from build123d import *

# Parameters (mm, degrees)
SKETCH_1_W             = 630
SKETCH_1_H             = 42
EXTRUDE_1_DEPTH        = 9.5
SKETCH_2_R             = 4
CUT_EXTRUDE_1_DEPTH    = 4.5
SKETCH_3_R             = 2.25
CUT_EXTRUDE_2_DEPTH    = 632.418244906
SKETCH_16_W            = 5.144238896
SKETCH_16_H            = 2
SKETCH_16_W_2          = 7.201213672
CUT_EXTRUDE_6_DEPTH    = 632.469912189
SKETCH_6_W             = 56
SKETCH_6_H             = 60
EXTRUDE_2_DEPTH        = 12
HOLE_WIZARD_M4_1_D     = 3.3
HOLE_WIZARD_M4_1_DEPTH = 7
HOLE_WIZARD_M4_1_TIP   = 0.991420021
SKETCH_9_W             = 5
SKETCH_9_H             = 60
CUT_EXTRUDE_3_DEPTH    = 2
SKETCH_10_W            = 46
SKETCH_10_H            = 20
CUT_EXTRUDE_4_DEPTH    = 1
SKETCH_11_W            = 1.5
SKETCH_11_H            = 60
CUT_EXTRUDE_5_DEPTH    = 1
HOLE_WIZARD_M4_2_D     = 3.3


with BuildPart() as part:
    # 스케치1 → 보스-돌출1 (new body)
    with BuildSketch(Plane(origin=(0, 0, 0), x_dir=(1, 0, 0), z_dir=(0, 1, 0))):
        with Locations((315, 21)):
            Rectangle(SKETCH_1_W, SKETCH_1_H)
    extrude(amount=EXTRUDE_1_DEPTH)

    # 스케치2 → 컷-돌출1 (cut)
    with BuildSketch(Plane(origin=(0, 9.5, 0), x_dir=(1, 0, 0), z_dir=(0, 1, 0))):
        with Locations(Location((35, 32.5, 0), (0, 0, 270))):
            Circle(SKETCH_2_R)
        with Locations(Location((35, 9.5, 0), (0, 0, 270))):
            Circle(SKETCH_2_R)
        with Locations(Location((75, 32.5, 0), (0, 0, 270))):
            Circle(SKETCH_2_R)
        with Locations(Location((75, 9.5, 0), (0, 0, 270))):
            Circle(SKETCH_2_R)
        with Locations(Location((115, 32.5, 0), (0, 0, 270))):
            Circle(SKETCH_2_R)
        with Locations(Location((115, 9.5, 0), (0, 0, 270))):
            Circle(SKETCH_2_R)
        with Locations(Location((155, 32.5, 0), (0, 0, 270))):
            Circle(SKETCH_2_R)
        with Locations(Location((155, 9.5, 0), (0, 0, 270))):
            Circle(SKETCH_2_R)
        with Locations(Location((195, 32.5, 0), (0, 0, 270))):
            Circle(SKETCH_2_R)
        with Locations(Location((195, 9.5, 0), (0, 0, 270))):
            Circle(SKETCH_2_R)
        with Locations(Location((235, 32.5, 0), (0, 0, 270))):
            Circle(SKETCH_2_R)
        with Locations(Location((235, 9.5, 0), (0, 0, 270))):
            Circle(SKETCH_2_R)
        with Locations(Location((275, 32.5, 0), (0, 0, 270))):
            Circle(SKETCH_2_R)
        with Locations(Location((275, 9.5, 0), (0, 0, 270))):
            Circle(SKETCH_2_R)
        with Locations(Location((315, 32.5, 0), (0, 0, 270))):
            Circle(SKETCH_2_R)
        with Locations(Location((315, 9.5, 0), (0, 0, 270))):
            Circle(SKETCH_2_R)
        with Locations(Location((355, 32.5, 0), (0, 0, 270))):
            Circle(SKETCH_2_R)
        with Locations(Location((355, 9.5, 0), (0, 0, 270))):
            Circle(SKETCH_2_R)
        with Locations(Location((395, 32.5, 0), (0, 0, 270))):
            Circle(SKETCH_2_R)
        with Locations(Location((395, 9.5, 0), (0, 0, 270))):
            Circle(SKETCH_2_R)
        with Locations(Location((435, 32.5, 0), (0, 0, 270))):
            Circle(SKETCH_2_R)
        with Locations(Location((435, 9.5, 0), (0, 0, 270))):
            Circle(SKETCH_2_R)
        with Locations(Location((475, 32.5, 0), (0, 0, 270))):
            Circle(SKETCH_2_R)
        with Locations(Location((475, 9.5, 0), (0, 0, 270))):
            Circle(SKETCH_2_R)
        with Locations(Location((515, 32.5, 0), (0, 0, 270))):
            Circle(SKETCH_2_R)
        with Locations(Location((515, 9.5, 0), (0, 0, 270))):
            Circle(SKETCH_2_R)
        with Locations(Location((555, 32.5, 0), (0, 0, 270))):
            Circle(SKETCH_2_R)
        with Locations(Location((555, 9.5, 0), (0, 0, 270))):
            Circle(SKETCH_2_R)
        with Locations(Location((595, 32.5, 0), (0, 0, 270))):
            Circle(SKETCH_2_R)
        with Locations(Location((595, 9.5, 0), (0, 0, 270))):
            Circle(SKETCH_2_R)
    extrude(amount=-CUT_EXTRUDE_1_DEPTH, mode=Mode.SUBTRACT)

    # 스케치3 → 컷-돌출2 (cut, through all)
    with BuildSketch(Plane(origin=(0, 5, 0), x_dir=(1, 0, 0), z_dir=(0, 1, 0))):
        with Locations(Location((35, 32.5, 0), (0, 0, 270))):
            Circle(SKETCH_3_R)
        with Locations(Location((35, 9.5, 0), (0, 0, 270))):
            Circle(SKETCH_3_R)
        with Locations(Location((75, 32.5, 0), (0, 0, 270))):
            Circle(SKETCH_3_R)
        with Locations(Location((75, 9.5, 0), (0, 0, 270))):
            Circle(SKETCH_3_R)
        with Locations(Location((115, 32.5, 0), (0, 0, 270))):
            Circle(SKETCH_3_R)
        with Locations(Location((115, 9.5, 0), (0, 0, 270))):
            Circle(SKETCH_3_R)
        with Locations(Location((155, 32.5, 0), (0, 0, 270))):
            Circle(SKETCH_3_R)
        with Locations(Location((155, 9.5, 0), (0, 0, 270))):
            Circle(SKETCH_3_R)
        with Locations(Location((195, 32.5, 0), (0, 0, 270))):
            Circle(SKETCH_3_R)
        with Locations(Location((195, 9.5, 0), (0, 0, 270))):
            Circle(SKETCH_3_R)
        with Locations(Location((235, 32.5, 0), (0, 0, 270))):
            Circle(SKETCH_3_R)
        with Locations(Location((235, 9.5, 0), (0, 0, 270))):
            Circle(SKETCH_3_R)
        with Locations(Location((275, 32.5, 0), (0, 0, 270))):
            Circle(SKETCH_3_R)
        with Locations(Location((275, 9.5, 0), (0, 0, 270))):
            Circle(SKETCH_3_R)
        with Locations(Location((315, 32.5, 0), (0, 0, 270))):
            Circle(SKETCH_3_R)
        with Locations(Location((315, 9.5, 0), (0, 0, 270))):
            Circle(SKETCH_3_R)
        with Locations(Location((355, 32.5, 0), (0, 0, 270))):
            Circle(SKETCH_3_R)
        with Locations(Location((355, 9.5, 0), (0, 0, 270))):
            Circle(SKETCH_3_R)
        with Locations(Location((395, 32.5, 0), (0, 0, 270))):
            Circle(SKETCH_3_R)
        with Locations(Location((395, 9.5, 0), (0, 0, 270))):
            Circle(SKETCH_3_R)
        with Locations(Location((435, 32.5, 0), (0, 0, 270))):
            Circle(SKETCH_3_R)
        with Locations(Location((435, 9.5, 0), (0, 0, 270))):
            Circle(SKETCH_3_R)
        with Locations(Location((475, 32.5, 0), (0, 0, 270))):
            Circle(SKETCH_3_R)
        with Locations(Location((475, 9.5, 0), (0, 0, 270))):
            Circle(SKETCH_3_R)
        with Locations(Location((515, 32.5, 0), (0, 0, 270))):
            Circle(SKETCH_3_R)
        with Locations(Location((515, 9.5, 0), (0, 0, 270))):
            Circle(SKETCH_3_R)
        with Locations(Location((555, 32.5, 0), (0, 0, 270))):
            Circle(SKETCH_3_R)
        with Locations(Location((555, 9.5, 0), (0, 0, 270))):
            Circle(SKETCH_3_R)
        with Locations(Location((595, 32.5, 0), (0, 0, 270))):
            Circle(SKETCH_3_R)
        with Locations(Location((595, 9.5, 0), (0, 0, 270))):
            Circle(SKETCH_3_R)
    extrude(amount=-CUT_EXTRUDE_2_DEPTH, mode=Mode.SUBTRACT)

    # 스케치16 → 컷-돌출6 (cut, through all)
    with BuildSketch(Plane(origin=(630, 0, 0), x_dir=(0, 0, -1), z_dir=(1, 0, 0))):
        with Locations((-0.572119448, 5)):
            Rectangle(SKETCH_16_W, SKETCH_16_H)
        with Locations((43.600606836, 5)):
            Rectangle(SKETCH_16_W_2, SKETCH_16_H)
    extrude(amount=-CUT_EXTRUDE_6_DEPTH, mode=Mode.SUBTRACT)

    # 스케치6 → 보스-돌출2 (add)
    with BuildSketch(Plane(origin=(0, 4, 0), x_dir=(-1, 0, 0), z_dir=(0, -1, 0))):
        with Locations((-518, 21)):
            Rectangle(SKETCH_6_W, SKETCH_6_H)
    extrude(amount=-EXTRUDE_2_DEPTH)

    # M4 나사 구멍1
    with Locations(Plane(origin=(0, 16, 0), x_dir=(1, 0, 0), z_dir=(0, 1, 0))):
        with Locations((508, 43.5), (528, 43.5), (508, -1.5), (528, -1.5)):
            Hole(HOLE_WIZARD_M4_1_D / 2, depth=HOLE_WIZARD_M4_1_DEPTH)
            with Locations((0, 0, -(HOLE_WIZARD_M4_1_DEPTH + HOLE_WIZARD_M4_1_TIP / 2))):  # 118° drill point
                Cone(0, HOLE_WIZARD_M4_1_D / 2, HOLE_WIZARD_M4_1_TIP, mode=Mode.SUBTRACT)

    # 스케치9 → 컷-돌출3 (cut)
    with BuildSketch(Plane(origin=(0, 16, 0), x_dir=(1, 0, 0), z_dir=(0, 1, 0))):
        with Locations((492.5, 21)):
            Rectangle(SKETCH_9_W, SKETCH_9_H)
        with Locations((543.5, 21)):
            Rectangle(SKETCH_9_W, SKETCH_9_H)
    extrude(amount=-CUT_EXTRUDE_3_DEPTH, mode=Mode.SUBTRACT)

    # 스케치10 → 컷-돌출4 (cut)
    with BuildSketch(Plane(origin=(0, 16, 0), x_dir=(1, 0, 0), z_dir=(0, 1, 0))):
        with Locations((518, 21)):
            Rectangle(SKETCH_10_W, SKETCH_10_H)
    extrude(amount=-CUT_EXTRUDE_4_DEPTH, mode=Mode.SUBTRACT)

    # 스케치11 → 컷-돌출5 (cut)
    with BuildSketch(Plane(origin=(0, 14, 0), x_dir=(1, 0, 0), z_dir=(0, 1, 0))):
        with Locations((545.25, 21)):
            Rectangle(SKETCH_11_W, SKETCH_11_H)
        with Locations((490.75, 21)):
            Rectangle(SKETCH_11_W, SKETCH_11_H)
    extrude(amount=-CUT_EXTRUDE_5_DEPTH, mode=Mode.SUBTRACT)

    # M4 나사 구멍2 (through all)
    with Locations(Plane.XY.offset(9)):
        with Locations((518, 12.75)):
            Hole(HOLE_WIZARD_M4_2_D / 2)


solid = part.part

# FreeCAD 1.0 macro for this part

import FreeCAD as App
import Part
import Sketcher

V = App.Vector
Q = App.Units.Quantity


def add_polygon(sketch, points):
    """Adds a closed chain of lines whose ends are joined by coincident constraints."""
    first, n = sketch.GeometryCount, len(points)
    for a, b in zip(points, points[1:] + points[:1]):
        sketch.addGeometry(Part.LineSegment(App.Vector(*a, 0), App.Vector(*b, 0)), False)
    for i in range(n):
        sketch.addConstraint(Sketcher.Constraint("Coincident", first + i, 2, first + (i + 1) % n, 1))

doc = App.newDocument("Part")
body = doc.addObject("PartDesign::Body", "Body")

# Sketch on XZ plane
sketch1 = doc.addObject("Sketcher::SketchObject", "Sketch")
body.addObject(sketch1)
sketch1.AttachmentSupport = (doc.XZ_Plane, [""])
sketch1.MapMode = "FlatFace"
add_polygon(sketch1, [(0, -42), (0, 0), (630, 0), (630, -42)])  # lines 0-3
sketch1.addConstraint(Sketcher.Constraint("Vertical", 0))
sketch1.addConstraint(Sketcher.Constraint("Horizontal", 1))
sketch1.addConstraint(Sketcher.Constraint("Vertical", 2))
sketch1.addConstraint(Sketcher.Constraint("Horizontal", 3))
sketch1.addConstraint(Sketcher.Constraint("Coincident", 0, 2, -1, 1))
sketch1.addConstraint(Sketcher.Constraint("DistanceX", 1, 1, 1, 2, Q("630 mm")))
sketch1.addConstraint(Sketcher.Constraint("DistanceY", 0, 1, 0, 2, Q("42 mm")))
pad1 = doc.addObject("PartDesign::Pad", "Pad")
body.addObject(pad1)
pad1.Profile = sketch1
pad1.Length = 9.5
pad1.Reversed = True

# Sketch on XZ plane
sketch2 = doc.addObject("Sketcher::SketchObject", "Sketch001")
body.addObject(sketch2)
sketch2.AttachmentSupport = (doc.XZ_Plane, [""])
sketch2.MapMode = "FlatFace"
sketch2.AttachmentOffset = App.Placement(V(0, 0, -9.5), App.Rotation())
sketch2.addGeometry(Part.Circle(V(35, -32.5, 0), V(0, 0, 1), 4), False)
sketch2.addGeometry(Part.Circle(V(35, -9.5, 0), V(0, 0, 1), 4), False)
sketch2.addGeometry(Part.Circle(V(75, -32.5, 0), V(0, 0, 1), 4), False)
sketch2.addGeometry(Part.Circle(V(75, -9.5, 0), V(0, 0, 1), 4), False)
sketch2.addGeometry(Part.Circle(V(115, -32.5, 0), V(0, 0, 1), 4), False)
sketch2.addGeometry(Part.Circle(V(115, -9.5, 0), V(0, 0, 1), 4), False)
sketch2.addGeometry(Part.Circle(V(155, -32.5, 0), V(0, 0, 1), 4), False)
sketch2.addGeometry(Part.Circle(V(155, -9.5, 0), V(0, 0, 1), 4), False)
sketch2.addGeometry(Part.Circle(V(195, -32.5, 0), V(0, 0, 1), 4), False)
sketch2.addGeometry(Part.Circle(V(195, -9.5, 0), V(0, 0, 1), 4), False)
sketch2.addGeometry(Part.Circle(V(235, -32.5, 0), V(0, 0, 1), 4), False)
sketch2.addGeometry(Part.Circle(V(235, -9.5, 0), V(0, 0, 1), 4), False)
sketch2.addGeometry(Part.Circle(V(275, -32.5, 0), V(0, 0, 1), 4), False)
sketch2.addGeometry(Part.Circle(V(275, -9.5, 0), V(0, 0, 1), 4), False)
sketch2.addGeometry(Part.Circle(V(315, -32.5, 0), V(0, 0, 1), 4), False)
sketch2.addGeometry(Part.Circle(V(315, -9.5, 0), V(0, 0, 1), 4), False)
sketch2.addGeometry(Part.Circle(V(355, -32.5, 0), V(0, 0, 1), 4), False)
sketch2.addGeometry(Part.Circle(V(355, -9.5, 0), V(0, 0, 1), 4), False)
sketch2.addGeometry(Part.Circle(V(395, -32.5, 0), V(0, 0, 1), 4), False)
sketch2.addGeometry(Part.Circle(V(395, -9.5, 0), V(0, 0, 1), 4), False)
sketch2.addGeometry(Part.Circle(V(435, -32.5, 0), V(0, 0, 1), 4), False)
sketch2.addGeometry(Part.Circle(V(435, -9.5, 0), V(0, 0, 1), 4), False)
sketch2.addGeometry(Part.Circle(V(475, -32.5, 0), V(0, 0, 1), 4), False)
sketch2.addGeometry(Part.Circle(V(475, -9.5, 0), V(0, 0, 1), 4), False)
sketch2.addGeometry(Part.Circle(V(515, -32.5, 0), V(0, 0, 1), 4), False)
sketch2.addGeometry(Part.Circle(V(515, -9.5, 0), V(0, 0, 1), 4), False)
sketch2.addGeometry(Part.Circle(V(555, -32.5, 0), V(0, 0, 1), 4), False)
sketch2.addGeometry(Part.Circle(V(555, -9.5, 0), V(0, 0, 1), 4), False)
sketch2.addGeometry(Part.Circle(V(595, -32.5, 0), V(0, 0, 1), 4), False)
sketch2.addGeometry(Part.Circle(V(595, -9.5, 0), V(0, 0, 1), 4), False)
sketch2.addConstraint(Sketcher.Constraint("Equal", 0, 1))
sketch2.addConstraint(Sketcher.Constraint("Equal", 1, 2))
sketch2.addConstraint(Sketcher.Constraint("Equal", 2, 3))
sketch2.addConstraint(Sketcher.Constraint("Equal", 3, 4))
sketch2.addConstraint(Sketcher.Constraint("Equal", 4, 5))
sketch2.addConstraint(Sketcher.Constraint("Equal", 5, 6))
sketch2.addConstraint(Sketcher.Constraint("Equal", 6, 7))
sketch2.addConstraint(Sketcher.Constraint("Equal", 7, 8))
sketch2.addConstraint(Sketcher.Constraint("Equal", 8, 9))
sketch2.addConstraint(Sketcher.Constraint("Equal", 9, 10))
sketch2.addConstraint(Sketcher.Constraint("Equal", 10, 11))
sketch2.addConstraint(Sketcher.Constraint("Equal", 11, 12))
sketch2.addConstraint(Sketcher.Constraint("Equal", 12, 13))
sketch2.addConstraint(Sketcher.Constraint("Equal", 13, 14))
sketch2.addConstraint(Sketcher.Constraint("Equal", 14, 15))
sketch2.addConstraint(Sketcher.Constraint("Equal", 15, 16))
sketch2.addConstraint(Sketcher.Constraint("Equal", 16, 17))
sketch2.addConstraint(Sketcher.Constraint("Equal", 17, 18))
sketch2.addConstraint(Sketcher.Constraint("Equal", 18, 19))
sketch2.addConstraint(Sketcher.Constraint("Equal", 19, 20))
sketch2.addConstraint(Sketcher.Constraint("Equal", 20, 21))
sketch2.addConstraint(Sketcher.Constraint("Equal", 21, 22))
sketch2.addConstraint(Sketcher.Constraint("Equal", 22, 23))
sketch2.addConstraint(Sketcher.Constraint("Equal", 23, 24))
sketch2.addConstraint(Sketcher.Constraint("Equal", 24, 25))
sketch2.addConstraint(Sketcher.Constraint("Equal", 25, 26))
sketch2.addConstraint(Sketcher.Constraint("Equal", 26, 27))
sketch2.addConstraint(Sketcher.Constraint("Equal", 27, 28))
sketch2.addConstraint(Sketcher.Constraint("Equal", 28, 29))
sketch2.addConstraint(Sketcher.Constraint("Horizontal", 0, 3, 2, 3))
sketch2.addConstraint(Sketcher.Constraint("Horizontal", 1, 3, 3, 3))
sketch2.addConstraint(Sketcher.Constraint("Horizontal", 2, 3, 4, 3))
sketch2.addConstraint(Sketcher.Constraint("Horizontal", 3, 3, 5, 3))
sketch2.addConstraint(Sketcher.Constraint("Horizontal", 4, 3, 6, 3))
sketch2.addConstraint(Sketcher.Constraint("Horizontal", 5, 3, 7, 3))
sketch2.addConstraint(Sketcher.Constraint("Horizontal", 6, 3, 8, 3))
sketch2.addConstraint(Sketcher.Constraint("Horizontal", 7, 3, 9, 3))
sketch2.addConstraint(Sketcher.Constraint("Horizontal", 8, 3, 10, 3))
sketch2.addConstraint(Sketcher.Constraint("Horizontal", 9, 3, 11, 3))
sketch2.addConstraint(Sketcher.Constraint("Horizontal", 10, 3, 12, 3))
sketch2.addConstraint(Sketcher.Constraint("Horizontal", 11, 3, 13, 3))
sketch2.addConstraint(Sketcher.Constraint("Horizontal", 12, 3, 14, 3))
sketch2.addConstraint(Sketcher.Constraint("Horizontal", 13, 3, 15, 3))
sketch2.addConstraint(Sketcher.Constraint("Horizontal", 14, 3, 16, 3))
sketch2.addConstraint(Sketcher.Constraint("Horizontal", 15, 3, 17, 3))
sketch2.addConstraint(Sketcher.Constraint("Horizontal", 16, 3, 18, 3))
sketch2.addConstraint(Sketcher.Constraint("Horizontal", 17, 3, 19, 3))
sketch2.addConstraint(Sketcher.Constraint("Horizontal", 18, 3, 20, 3))
sketch2.addConstraint(Sketcher.Constraint("Horizontal", 19, 3, 21, 3))
sketch2.addConstraint(Sketcher.Constraint("Horizontal", 20, 3, 22, 3))
sketch2.addConstraint(Sketcher.Constraint("Horizontal", 21, 3, 23, 3))
sketch2.addConstraint(Sketcher.Constraint("Horizontal", 22, 3, 24, 3))
sketch2.addConstraint(Sketcher.Constraint("Horizontal", 23, 3, 25, 3))
sketch2.addConstraint(Sketcher.Constraint("Horizontal", 24, 3, 26, 3))
sketch2.addConstraint(Sketcher.Constraint("Horizontal", 25, 3, 27, 3))
sketch2.addConstraint(Sketcher.Constraint("Horizontal", 26, 3, 28, 3))
sketch2.addConstraint(Sketcher.Constraint("Horizontal", 27, 3, 29, 3))
sketch2.addConstraint(Sketcher.Constraint("Vertical", 0, 3, 1, 3))
sketch2.addConstraint(Sketcher.Constraint("Vertical", 2, 3, 3, 3))
sketch2.addConstraint(Sketcher.Constraint("Vertical", 4, 3, 5, 3))
sketch2.addConstraint(Sketcher.Constraint("Vertical", 6, 3, 7, 3))
sketch2.addConstraint(Sketcher.Constraint("Vertical", 8, 3, 9, 3))
sketch2.addConstraint(Sketcher.Constraint("Vertical", 10, 3, 11, 3))
sketch2.addConstraint(Sketcher.Constraint("Vertical", 12, 3, 13, 3))
sketch2.addConstraint(Sketcher.Constraint("Vertical", 14, 3, 15, 3))
sketch2.addConstraint(Sketcher.Constraint("Vertical", 16, 3, 17, 3))
sketch2.addConstraint(Sketcher.Constraint("Vertical", 18, 3, 19, 3))
sketch2.addConstraint(Sketcher.Constraint("Vertical", 20, 3, 21, 3))
sketch2.addConstraint(Sketcher.Constraint("Vertical", 22, 3, 23, 3))
sketch2.addConstraint(Sketcher.Constraint("Vertical", 24, 3, 25, 3))
sketch2.addConstraint(Sketcher.Constraint("Vertical", 26, 3, 27, 3))
sketch2.addConstraint(Sketcher.Constraint("Vertical", 28, 3, 29, 3))
sketch2.addConstraint(Sketcher.Constraint("Diameter", 0, Q("8 mm")))
sketch2.addConstraint(Sketcher.Constraint("DistanceX", -1, 1, 0, 3, Q("35 mm")))
sketch2.addConstraint(Sketcher.Constraint("DistanceX", -1, 1, 2, 3, Q("75 mm")))
sketch2.addConstraint(Sketcher.Constraint("DistanceX", -1, 1, 4, 3, Q("115 mm")))
sketch2.addConstraint(Sketcher.Constraint("DistanceX", -1, 1, 6, 3, Q("155 mm")))
sketch2.addConstraint(Sketcher.Constraint("DistanceX", -1, 1, 8, 3, Q("195 mm")))
sketch2.addConstraint(Sketcher.Constraint("DistanceX", -1, 1, 10, 3, Q("235 mm")))
sketch2.addConstraint(Sketcher.Constraint("DistanceX", -1, 1, 12, 3, Q("275 mm")))
sketch2.addConstraint(Sketcher.Constraint("DistanceX", -1, 1, 14, 3, Q("315 mm")))
sketch2.addConstraint(Sketcher.Constraint("DistanceX", -1, 1, 16, 3, Q("355 mm")))
sketch2.addConstraint(Sketcher.Constraint("DistanceX", -1, 1, 18, 3, Q("395 mm")))
sketch2.addConstraint(Sketcher.Constraint("DistanceX", -1, 1, 20, 3, Q("435 mm")))
sketch2.addConstraint(Sketcher.Constraint("DistanceX", -1, 1, 22, 3, Q("475 mm")))
sketch2.addConstraint(Sketcher.Constraint("DistanceX", -1, 1, 24, 3, Q("515 mm")))
sketch2.addConstraint(Sketcher.Constraint("DistanceX", -1, 1, 26, 3, Q("555 mm")))
sketch2.addConstraint(Sketcher.Constraint("DistanceX", -1, 1, 28, 3, Q("595 mm")))
sketch2.addConstraint(Sketcher.Constraint("DistanceY", 0, 3, 1, 3, Q("23 mm")))
sketch2.addConstraint(Sketcher.Constraint("DistanceY", 0, 3, -1, 1, Q("32.5 mm")))
pocket1 = doc.addObject("PartDesign::Pocket", "Pocket")
body.addObject(pocket1)
pocket1.Profile = sketch2
pocket1.Length = 4.5
pocket1.Reversed = True

# Sketch on XZ plane
sketch3 = doc.addObject("Sketcher::SketchObject", "Sketch002")
body.addObject(sketch3)
sketch3.AttachmentSupport = (doc.XZ_Plane, [""])
sketch3.MapMode = "FlatFace"
sketch3.AttachmentOffset = App.Placement(V(0, 0, -5), App.Rotation())
sketch3.addGeometry(Part.Circle(V(35, -32.5, 0), V(0, 0, 1), 2.25), False)
sketch3.addGeometry(Part.Circle(V(35, -9.5, 0), V(0, 0, 1), 2.25), False)
sketch3.addGeometry(Part.Circle(V(75, -32.5, 0), V(0, 0, 1), 2.25), False)
sketch3.addGeometry(Part.Circle(V(75, -9.5, 0), V(0, 0, 1), 2.25), False)
sketch3.addGeometry(Part.Circle(V(115, -32.5, 0), V(0, 0, 1), 2.25), False)
sketch3.addGeometry(Part.Circle(V(115, -9.5, 0), V(0, 0, 1), 2.25), False)
sketch3.addGeometry(Part.Circle(V(155, -32.5, 0), V(0, 0, 1), 2.25), False)
sketch3.addGeometry(Part.Circle(V(155, -9.5, 0), V(0, 0, 1), 2.25), False)
sketch3.addGeometry(Part.Circle(V(195, -32.5, 0), V(0, 0, 1), 2.25), False)
sketch3.addGeometry(Part.Circle(V(195, -9.5, 0), V(0, 0, 1), 2.25), False)
sketch3.addGeometry(Part.Circle(V(235, -32.5, 0), V(0, 0, 1), 2.25), False)
sketch3.addGeometry(Part.Circle(V(235, -9.5, 0), V(0, 0, 1), 2.25), False)
sketch3.addGeometry(Part.Circle(V(275, -32.5, 0), V(0, 0, 1), 2.25), False)
sketch3.addGeometry(Part.Circle(V(275, -9.5, 0), V(0, 0, 1), 2.25), False)
sketch3.addGeometry(Part.Circle(V(315, -32.5, 0), V(0, 0, 1), 2.25), False)
sketch3.addGeometry(Part.Circle(V(315, -9.5, 0), V(0, 0, 1), 2.25), False)
sketch3.addGeometry(Part.Circle(V(355, -32.5, 0), V(0, 0, 1), 2.25), False)
sketch3.addGeometry(Part.Circle(V(355, -9.5, 0), V(0, 0, 1), 2.25), False)
sketch3.addGeometry(Part.Circle(V(395, -32.5, 0), V(0, 0, 1), 2.25), False)
sketch3.addGeometry(Part.Circle(V(395, -9.5, 0), V(0, 0, 1), 2.25), False)
sketch3.addGeometry(Part.Circle(V(435, -32.5, 0), V(0, 0, 1), 2.25), False)
sketch3.addGeometry(Part.Circle(V(435, -9.5, 0), V(0, 0, 1), 2.25), False)
sketch3.addGeometry(Part.Circle(V(475, -32.5, 0), V(0, 0, 1), 2.25), False)
sketch3.addGeometry(Part.Circle(V(475, -9.5, 0), V(0, 0, 1), 2.25), False)
sketch3.addGeometry(Part.Circle(V(515, -32.5, 0), V(0, 0, 1), 2.25), False)
sketch3.addGeometry(Part.Circle(V(515, -9.5, 0), V(0, 0, 1), 2.25), False)
sketch3.addGeometry(Part.Circle(V(555, -32.5, 0), V(0, 0, 1), 2.25), False)
sketch3.addGeometry(Part.Circle(V(555, -9.5, 0), V(0, 0, 1), 2.25), False)
sketch3.addGeometry(Part.Circle(V(595, -32.5, 0), V(0, 0, 1), 2.25), False)
sketch3.addGeometry(Part.Circle(V(595, -9.5, 0), V(0, 0, 1), 2.25), False)
sketch3.addConstraint(Sketcher.Constraint("Equal", 0, 1))
sketch3.addConstraint(Sketcher.Constraint("Equal", 1, 2))
sketch3.addConstraint(Sketcher.Constraint("Equal", 2, 3))
sketch3.addConstraint(Sketcher.Constraint("Equal", 3, 4))
sketch3.addConstraint(Sketcher.Constraint("Equal", 4, 5))
sketch3.addConstraint(Sketcher.Constraint("Equal", 5, 6))
sketch3.addConstraint(Sketcher.Constraint("Equal", 6, 7))
sketch3.addConstraint(Sketcher.Constraint("Equal", 7, 8))
sketch3.addConstraint(Sketcher.Constraint("Equal", 8, 9))
sketch3.addConstraint(Sketcher.Constraint("Equal", 9, 10))
sketch3.addConstraint(Sketcher.Constraint("Equal", 10, 11))
sketch3.addConstraint(Sketcher.Constraint("Equal", 11, 12))
sketch3.addConstraint(Sketcher.Constraint("Equal", 12, 13))
sketch3.addConstraint(Sketcher.Constraint("Equal", 13, 14))
sketch3.addConstraint(Sketcher.Constraint("Equal", 14, 15))
sketch3.addConstraint(Sketcher.Constraint("Equal", 15, 16))
sketch3.addConstraint(Sketcher.Constraint("Equal", 16, 17))
sketch3.addConstraint(Sketcher.Constraint("Equal", 17, 18))
sketch3.addConstraint(Sketcher.Constraint("Equal", 18, 19))
sketch3.addConstraint(Sketcher.Constraint("Equal", 19, 20))
sketch3.addConstraint(Sketcher.Constraint("Equal", 20, 21))
sketch3.addConstraint(Sketcher.Constraint("Equal", 21, 22))
sketch3.addConstraint(Sketcher.Constraint("Equal", 22, 23))
sketch3.addConstraint(Sketcher.Constraint("Equal", 23, 24))
sketch3.addConstraint(Sketcher.Constraint("Equal", 24, 25))
sketch3.addConstraint(Sketcher.Constraint("Equal", 25, 26))
sketch3.addConstraint(Sketcher.Constraint("Equal", 26, 27))
sketch3.addConstraint(Sketcher.Constraint("Equal", 27, 28))
sketch3.addConstraint(Sketcher.Constraint("Equal", 28, 29))
sketch3.addConstraint(Sketcher.Constraint("Horizontal", 0, 3, 2, 3))
sketch3.addConstraint(Sketcher.Constraint("Horizontal", 1, 3, 3, 3))
sketch3.addConstraint(Sketcher.Constraint("Horizontal", 2, 3, 4, 3))
sketch3.addConstraint(Sketcher.Constraint("Horizontal", 3, 3, 5, 3))
sketch3.addConstraint(Sketcher.Constraint("Horizontal", 4, 3, 6, 3))
sketch3.addConstraint(Sketcher.Constraint("Horizontal", 5, 3, 7, 3))
sketch3.addConstraint(Sketcher.Constraint("Horizontal", 6, 3, 8, 3))
sketch3.addConstraint(Sketcher.Constraint("Horizontal", 7, 3, 9, 3))
sketch3.addConstraint(Sketcher.Constraint("Horizontal", 8, 3, 10, 3))
sketch3.addConstraint(Sketcher.Constraint("Horizontal", 9, 3, 11, 3))
sketch3.addConstraint(Sketcher.Constraint("Horizontal", 10, 3, 12, 3))
sketch3.addConstraint(Sketcher.Constraint("Horizontal", 11, 3, 13, 3))
sketch3.addConstraint(Sketcher.Constraint("Horizontal", 12, 3, 14, 3))
sketch3.addConstraint(Sketcher.Constraint("Horizontal", 13, 3, 15, 3))
sketch3.addConstraint(Sketcher.Constraint("Horizontal", 14, 3, 16, 3))
sketch3.addConstraint(Sketcher.Constraint("Horizontal", 15, 3, 17, 3))
sketch3.addConstraint(Sketcher.Constraint("Horizontal", 16, 3, 18, 3))
sketch3.addConstraint(Sketcher.Constraint("Horizontal", 17, 3, 19, 3))
sketch3.addConstraint(Sketcher.Constraint("Horizontal", 18, 3, 20, 3))
sketch3.addConstraint(Sketcher.Constraint("Horizontal", 19, 3, 21, 3))
sketch3.addConstraint(Sketcher.Constraint("Horizontal", 20, 3, 22, 3))
sketch3.addConstraint(Sketcher.Constraint("Horizontal", 21, 3, 23, 3))
sketch3.addConstraint(Sketcher.Constraint("Horizontal", 22, 3, 24, 3))
sketch3.addConstraint(Sketcher.Constraint("Horizontal", 23, 3, 25, 3))
sketch3.addConstraint(Sketcher.Constraint("Horizontal", 24, 3, 26, 3))
sketch3.addConstraint(Sketcher.Constraint("Horizontal", 25, 3, 27, 3))
sketch3.addConstraint(Sketcher.Constraint("Horizontal", 26, 3, 28, 3))
sketch3.addConstraint(Sketcher.Constraint("Horizontal", 27, 3, 29, 3))
sketch3.addConstraint(Sketcher.Constraint("Vertical", 0, 3, 1, 3))
sketch3.addConstraint(Sketcher.Constraint("Vertical", 2, 3, 3, 3))
sketch3.addConstraint(Sketcher.Constraint("Vertical", 4, 3, 5, 3))
sketch3.addConstraint(Sketcher.Constraint("Vertical", 6, 3, 7, 3))
sketch3.addConstraint(Sketcher.Constraint("Vertical", 8, 3, 9, 3))
sketch3.addConstraint(Sketcher.Constraint("Vertical", 10, 3, 11, 3))
sketch3.addConstraint(Sketcher.Constraint("Vertical", 12, 3, 13, 3))
sketch3.addConstraint(Sketcher.Constraint("Vertical", 14, 3, 15, 3))
sketch3.addConstraint(Sketcher.Constraint("Vertical", 16, 3, 17, 3))
sketch3.addConstraint(Sketcher.Constraint("Vertical", 18, 3, 19, 3))
sketch3.addConstraint(Sketcher.Constraint("Vertical", 20, 3, 21, 3))
sketch3.addConstraint(Sketcher.Constraint("Vertical", 22, 3, 23, 3))
sketch3.addConstraint(Sketcher.Constraint("Vertical", 24, 3, 25, 3))
sketch3.addConstraint(Sketcher.Constraint("Vertical", 26, 3, 27, 3))
sketch3.addConstraint(Sketcher.Constraint("Vertical", 28, 3, 29, 3))
sketch3.addConstraint(Sketcher.Constraint("Diameter", 0, Q("4.5 mm")))
sketch3.addConstraint(Sketcher.Constraint("DistanceX", -1, 1, 0, 3, Q("35 mm")))
sketch3.addConstraint(Sketcher.Constraint("DistanceX", -1, 1, 2, 3, Q("75 mm")))
sketch3.addConstraint(Sketcher.Constraint("DistanceX", -1, 1, 4, 3, Q("115 mm")))
sketch3.addConstraint(Sketcher.Constraint("DistanceX", -1, 1, 6, 3, Q("155 mm")))
sketch3.addConstraint(Sketcher.Constraint("DistanceX", -1, 1, 8, 3, Q("195 mm")))
sketch3.addConstraint(Sketcher.Constraint("DistanceX", -1, 1, 10, 3, Q("235 mm")))
sketch3.addConstraint(Sketcher.Constraint("DistanceX", -1, 1, 12, 3, Q("275 mm")))
sketch3.addConstraint(Sketcher.Constraint("DistanceX", -1, 1, 14, 3, Q("315 mm")))
sketch3.addConstraint(Sketcher.Constraint("DistanceX", -1, 1, 16, 3, Q("355 mm")))
sketch3.addConstraint(Sketcher.Constraint("DistanceX", -1, 1, 18, 3, Q("395 mm")))
sketch3.addConstraint(Sketcher.Constraint("DistanceX", -1, 1, 20, 3, Q("435 mm")))
sketch3.addConstraint(Sketcher.Constraint("DistanceX", -1, 1, 22, 3, Q("475 mm")))
sketch3.addConstraint(Sketcher.Constraint("DistanceX", -1, 1, 24, 3, Q("515 mm")))
sketch3.addConstraint(Sketcher.Constraint("DistanceX", -1, 1, 26, 3, Q("555 mm")))
sketch3.addConstraint(Sketcher.Constraint("DistanceX", -1, 1, 28, 3, Q("595 mm")))
sketch3.addConstraint(Sketcher.Constraint("DistanceY", 0, 3, 1, 3, Q("23 mm")))
sketch3.addConstraint(Sketcher.Constraint("DistanceY", 0, 3, -1, 1, Q("32.5 mm")))
pocket2 = doc.addObject("PartDesign::Pocket", "Pocket001")
body.addObject(pocket2)
pocket2.Profile = sketch3
pocket2.Type = "ThroughAll"
pocket2.Reversed = True

# Sketch on YZ plane
sketch4 = doc.addObject("Sketcher::SketchObject", "Sketch003")
body.addObject(sketch4)
sketch4.AttachmentSupport = (doc.YZ_Plane, [""])
sketch4.MapMode = "FlatFace"
sketch4.AttachmentOffset = App.Placement(V(0, 0, 630), App.Rotation())
add_polygon(sketch4, [(6, 3.144239), (4, 3.144239), (4, -2), (6, -2)])  # lines 0-3
add_polygon(sketch4, [(6, -40), (4, -40), (4, -47.201214), (6, -47.201214)])  # lines 4-7
sketch4.addConstraint(Sketcher.Constraint("Horizontal", 0))
sketch4.addConstraint(Sketcher.Constraint("Vertical", 1))
sketch4.addConstraint(Sketcher.Constraint("Horizontal", 2))
sketch4.addConstraint(Sketcher.Constraint("Vertical", 3))
sketch4.addConstraint(Sketcher.Constraint("Horizontal", 4))
sketch4.addConstraint(Sketcher.Constraint("Vertical", 5))
sketch4.addConstraint(Sketcher.Constraint("Horizontal", 6))
sketch4.addConstraint(Sketcher.Constraint("Vertical", 7))
sketch4.addConstraint(Sketcher.Constraint("Vertical", 1, 2, 4, 2))
sketch4.addConstraint(Sketcher.Constraint("Vertical", 3, 2, 6, 2))
sketch4.addConstraint(Sketcher.Constraint("DistanceX", 0, 2, 0, 1, Q("2 mm")))
sketch4.addConstraint(Sketcher.Constraint("DistanceX", -1, 1, 0, 2, Q("4 mm")))
sketch4.addConstraint(Sketcher.Constraint("DistanceY", 1, 2, -1, 1, Q("2 mm")))
sketch4.addConstraint(Sketcher.Constraint("DistanceY", 4, 2, -1, 1, Q("40 mm")))
sketch4.addConstraint(Sketcher.Constraint("DistanceY", 1, 2, 1, 1, Q("5.144239 mm")))
sketch4.addConstraint(Sketcher.Constraint("DistanceY", 5, 2, 5, 1, Q("7.201214 mm")))
pocket3 = doc.addObject("PartDesign::Pocket", "Pocket002")
body.addObject(pocket3)
pocket3.Profile = sketch4
pocket3.Type = "ThroughAll"

# Sketch on XZ plane
sketch5 = doc.addObject("Sketcher::SketchObject", "Sketch004")
body.addObject(sketch5)
sketch5.AttachmentSupport = (doc.XZ_Plane, [""])
sketch5.MapMode = "FlatFace"
sketch5.AttachmentOffset = App.Placement(V(0, 0, -4), App.Rotation())
add_polygon(sketch5, [(546, -51), (546, 9), (490, 9), (490, -51)])  # lines 0-3
sketch5.addConstraint(Sketcher.Constraint("Vertical", 0))
sketch5.addConstraint(Sketcher.Constraint("Horizontal", 1))
sketch5.addConstraint(Sketcher.Constraint("Vertical", 2))
sketch5.addConstraint(Sketcher.Constraint("Horizontal", 3))
sketch5.addConstraint(Sketcher.Constraint("DistanceX", 1, 2, 1, 1, Q("56 mm")))
sketch5.addConstraint(Sketcher.Constraint("DistanceY", 0, 1, 0, 2, Q("60 mm")))
sketch5.addConstraint(Sketcher.Constraint("DistanceX", -1, 1, 0, 2, Q("546 mm")))
sketch5.addConstraint(Sketcher.Constraint("DistanceY", -1, 1, 0, 2, Q("9 mm")))
pad2 = doc.addObject("PartDesign::Pad", "Pad001")
body.addObject(pad2)
pad2.Profile = sketch5
pad2.Length = 12
pad2.Reversed = True

# Sketch on XZ plane
sketch6 = doc.addObject("Sketcher::SketchObject", "Sketch005")
body.addObject(sketch6)
sketch6.AttachmentSupport = (doc.XZ_Plane, [""])
sketch6.MapMode = "FlatFace"
sketch6.AttachmentOffset = App.Placement(V(0, 0, -16), App.Rotation())
sketch6.addGeometry(Part.Circle(V(508, -43.5, 0), V(0, 0, 1), 1.65), False)
sketch6.addGeometry(Part.Circle(V(528, -43.5, 0), V(0, 0, 1), 1.65), False)
sketch6.addGeometry(Part.Circle(V(508, 1.5, 0), V(0, 0, 1), 1.65), False)
sketch6.addGeometry(Part.Circle(V(528, 1.5, 0), V(0, 0, 1), 1.65), False)
sketch6.addConstraint(Sketcher.Constraint("Equal", 0, 1))
sketch6.addConstraint(Sketcher.Constraint("Equal", 1, 2))
sketch6.addConstraint(Sketcher.Constraint("Equal", 2, 3))
sketch6.addConstraint(Sketcher.Constraint("Horizontal", 0, 3, 1, 3))
sketch6.addConstraint(Sketcher.Constraint("Horizontal", 2, 3, 3, 3))
sketch6.addConstraint(Sketcher.Constraint("Vertical", 0, 3, 2, 3))
sketch6.addConstraint(Sketcher.Constraint("Vertical", 1, 3, 3, 3))
sketch6.addConstraint(Sketcher.Constraint("Diameter", 0, Q("3.3 mm")))
sketch6.addConstraint(Sketcher.Constraint("DistanceX", -1, 1, 0, 3, Q("508 mm")))
sketch6.addConstraint(Sketcher.Constraint("DistanceX", -1, 1, 1, 3, Q("528 mm")))
sketch6.addConstraint(Sketcher.Constraint("DistanceY", 0, 3, 2, 3, Q("45 mm")))
sketch6.addConstraint(Sketcher.Constraint("DistanceY", 0, 3, -1, 1, Q("43.5 mm")))
doc.recompute()
hole = doc.addObject("PartDesign::Hole", "Hole")
body.addObject(hole)
hole.Profile = sketch6
hole.ThreadType = "None"
hole.Diameter = 3.3
hole.DepthType = "Dimension"
hole.Depth = 7
hole.DrillPoint = "Angled"
hole.DrillPointAngle = 118
hole.Reversed = True

# Sketch on XZ plane
sketch7 = doc.addObject("Sketcher::SketchObject", "Sketch006")
body.addObject(sketch7)
sketch7.AttachmentSupport = (doc.XZ_Plane, [""])
sketch7.MapMode = "FlatFace"
sketch7.AttachmentOffset = App.Placement(V(0, 0, -16), App.Rotation())
add_polygon(sketch7, [(490, -51), (490, 9), (495, 9), (495, -51)])  # lines 0-3
add_polygon(sketch7, [(541, -51), (541, 9), (546, 9), (546, -51)])  # lines 4-7
sketch7.addConstraint(Sketcher.Constraint("Vertical", 0))
sketch7.addConstraint(Sketcher.Constraint("Horizontal", 1))
sketch7.addConstraint(Sketcher.Constraint("Vertical", 2))
sketch7.addConstraint(Sketcher.Constraint("Horizontal", 3))
sketch7.addConstraint(Sketcher.Constraint("Vertical", 4))
sketch7.addConstraint(Sketcher.Constraint("Horizontal", 5))
sketch7.addConstraint(Sketcher.Constraint("Vertical", 6))
sketch7.addConstraint(Sketcher.Constraint("Horizontal", 7))
sketch7.addConstraint(Sketcher.Constraint("Horizontal", 1, 2, 4, 2))
sketch7.addConstraint(Sketcher.Constraint("Horizontal", 3, 2, 6, 2))
sketch7.addConstraint(Sketcher.Constraint("Equal", 3, 5))
sketch7.addConstraint(Sketcher.Constraint("DistanceX", 1, 1, 1, 2, Q("5 mm")))
sketch7.addConstraint(Sketcher.Constraint("DistanceY", 0, 1, 0, 2, Q("60 mm")))
sketch7.addConstraint(Sketcher.Constraint("DistanceX", -1, 1, 0, 2, Q("490 mm")))
sketch7.addConstraint(Sketcher.Constraint("DistanceY", -1, 1, 0, 2, Q("9 mm")))
sketch7.addConstraint(Sketcher.Constraint("DistanceX", -1, 1, 4, 2, Q("541 mm")))
pocket4 = doc.addObject("PartDesign::Pocket", "Pocket003")
body.addObject(pocket4)
pocket4.Profile = sketch7
pocket4.Length = 2
pocket4.Reversed = True

# Sketch on XZ plane
sketch8 = doc.addObject("Sketcher::SketchObject", "Sketch007")
body.addObject(sketch8)
sketch8.AttachmentSupport = (doc.XZ_Plane, [""])
sketch8.MapMode = "FlatFace"
sketch8.AttachmentOffset = App.Placement(V(0, 0, -16), App.Rotation())
add_polygon(sketch8, [(495, -31), (495, -11), (541, -11), (541, -31)])  # lines 0-3
sketch8.addConstraint(Sketcher.Constraint("Vertical", 0))
sketch8.addConstraint(Sketcher.Constraint("Horizontal", 1))
sketch8.addConstraint(Sketcher.Constraint("Vertical", 2))
sketch8.addConstraint(Sketcher.Constraint("Horizontal", 3))
sketch8.addConstraint(Sketcher.Constraint("DistanceX", 1, 1, 1, 2, Q("46 mm")))
sketch8.addConstraint(Sketcher.Constraint("DistanceY", 0, 1, 0, 2, Q("20 mm")))
sketch8.addConstraint(Sketcher.Constraint("DistanceX", -1, 1, 0, 2, Q("495 mm")))
sketch8.addConstraint(Sketcher.Constraint("DistanceY", 0, 2, -1, 1, Q("11 mm")))
pocket5 = doc.addObject("PartDesign::Pocket", "Pocket004")
body.addObject(pocket5)
pocket5.Profile = sketch8
pocket5.Length = 1
pocket5.Reversed = True

# Sketch on XZ plane
sketch9 = doc.addObject("Sketcher::SketchObject", "Sketch008")
body.addObject(sketch9)
sketch9.AttachmentSupport = (doc.XZ_Plane, [""])
sketch9.MapMode = "FlatFace"
sketch9.AttachmentOffset = App.Placement(V(0, 0, -14), App.Rotation())
add_polygon(sketch9, [(544.5, -51), (544.5, 9), (546, 9), (546, -51)])  # lines 0-3
add_polygon(sketch9, [(490, -51), (490, 9), (491.5, 9), (491.5, -51)])  # lines 4-7
sketch9.addConstraint(Sketcher.Constraint("Vertical", 0))
sketch9.addConstraint(Sketcher.Constraint("Horizontal", 1))
sketch9.addConstraint(Sketcher.Constraint("Vertical", 2))
sketch9.addConstraint(Sketcher.Constraint("Horizontal", 3))
sketch9.addConstraint(Sketcher.Constraint("Vertical", 4))
sketch9.addConstraint(Sketcher.Constraint("Horizontal", 5))
sketch9.addConstraint(Sketcher.Constraint("Vertical", 6))
sketch9.addConstraint(Sketcher.Constraint("Horizontal", 7))
sketch9.addConstraint(Sketcher.Constraint("Horizontal", 1, 2, 4, 2))
sketch9.addConstraint(Sketcher.Constraint("Horizontal", 3, 2, 6, 2))
sketch9.addConstraint(Sketcher.Constraint("Equal", 3, 5))
sketch9.addConstraint(Sketcher.Constraint("DistanceY", 0, 1, 0, 2, Q("60 mm")))
sketch9.addConstraint(Sketcher.Constraint("DistanceX", 1, 1, 1, 2, Q("1.5 mm")))
sketch9.addConstraint(Sketcher.Constraint("DistanceY", -1, 1, 0, 2, Q("9 mm")))
sketch9.addConstraint(Sketcher.Constraint("DistanceX", -1, 1, 1, 2, Q("546 mm")))
sketch9.addConstraint(Sketcher.Constraint("DistanceX", -1, 1, 4, 2, Q("490 mm")))
pocket6 = doc.addObject("PartDesign::Pocket", "Pocket005")
body.addObject(pocket6)
pocket6.Profile = sketch9
pocket6.Length = 1
pocket6.Reversed = True

# Sketch on XY plane
sketch10 = doc.addObject("Sketcher::SketchObject", "Sketch009")
body.addObject(sketch10)
sketch10.AttachmentSupport = (doc.XY_Plane, [""])
sketch10.MapMode = "FlatFace"
sketch10.AttachmentOffset = App.Placement(V(0, 0, 9), App.Rotation())
sketch10.addGeometry(Part.Circle(V(518, 12.75, 0), V(0, 0, 1), 1.65), False)
sketch10.addConstraint(Sketcher.Constraint("Diameter", 0, Q("3.3 mm")))
sketch10.addConstraint(Sketcher.Constraint("DistanceX", -1, 1, 0, 3, Q("518 mm")))
sketch10.addConstraint(Sketcher.Constraint("DistanceY", -1, 1, 0, 3, Q("12.75 mm")))
doc.recompute()
hole2 = doc.addObject("PartDesign::Hole", "Hole001")
body.addObject(hole2)
hole2.Profile = sketch10
hole2.ThreadType = "None"
hole2.Diameter = 3.3
hole2.DepthType = "ThroughAll"

doc.recompute()
